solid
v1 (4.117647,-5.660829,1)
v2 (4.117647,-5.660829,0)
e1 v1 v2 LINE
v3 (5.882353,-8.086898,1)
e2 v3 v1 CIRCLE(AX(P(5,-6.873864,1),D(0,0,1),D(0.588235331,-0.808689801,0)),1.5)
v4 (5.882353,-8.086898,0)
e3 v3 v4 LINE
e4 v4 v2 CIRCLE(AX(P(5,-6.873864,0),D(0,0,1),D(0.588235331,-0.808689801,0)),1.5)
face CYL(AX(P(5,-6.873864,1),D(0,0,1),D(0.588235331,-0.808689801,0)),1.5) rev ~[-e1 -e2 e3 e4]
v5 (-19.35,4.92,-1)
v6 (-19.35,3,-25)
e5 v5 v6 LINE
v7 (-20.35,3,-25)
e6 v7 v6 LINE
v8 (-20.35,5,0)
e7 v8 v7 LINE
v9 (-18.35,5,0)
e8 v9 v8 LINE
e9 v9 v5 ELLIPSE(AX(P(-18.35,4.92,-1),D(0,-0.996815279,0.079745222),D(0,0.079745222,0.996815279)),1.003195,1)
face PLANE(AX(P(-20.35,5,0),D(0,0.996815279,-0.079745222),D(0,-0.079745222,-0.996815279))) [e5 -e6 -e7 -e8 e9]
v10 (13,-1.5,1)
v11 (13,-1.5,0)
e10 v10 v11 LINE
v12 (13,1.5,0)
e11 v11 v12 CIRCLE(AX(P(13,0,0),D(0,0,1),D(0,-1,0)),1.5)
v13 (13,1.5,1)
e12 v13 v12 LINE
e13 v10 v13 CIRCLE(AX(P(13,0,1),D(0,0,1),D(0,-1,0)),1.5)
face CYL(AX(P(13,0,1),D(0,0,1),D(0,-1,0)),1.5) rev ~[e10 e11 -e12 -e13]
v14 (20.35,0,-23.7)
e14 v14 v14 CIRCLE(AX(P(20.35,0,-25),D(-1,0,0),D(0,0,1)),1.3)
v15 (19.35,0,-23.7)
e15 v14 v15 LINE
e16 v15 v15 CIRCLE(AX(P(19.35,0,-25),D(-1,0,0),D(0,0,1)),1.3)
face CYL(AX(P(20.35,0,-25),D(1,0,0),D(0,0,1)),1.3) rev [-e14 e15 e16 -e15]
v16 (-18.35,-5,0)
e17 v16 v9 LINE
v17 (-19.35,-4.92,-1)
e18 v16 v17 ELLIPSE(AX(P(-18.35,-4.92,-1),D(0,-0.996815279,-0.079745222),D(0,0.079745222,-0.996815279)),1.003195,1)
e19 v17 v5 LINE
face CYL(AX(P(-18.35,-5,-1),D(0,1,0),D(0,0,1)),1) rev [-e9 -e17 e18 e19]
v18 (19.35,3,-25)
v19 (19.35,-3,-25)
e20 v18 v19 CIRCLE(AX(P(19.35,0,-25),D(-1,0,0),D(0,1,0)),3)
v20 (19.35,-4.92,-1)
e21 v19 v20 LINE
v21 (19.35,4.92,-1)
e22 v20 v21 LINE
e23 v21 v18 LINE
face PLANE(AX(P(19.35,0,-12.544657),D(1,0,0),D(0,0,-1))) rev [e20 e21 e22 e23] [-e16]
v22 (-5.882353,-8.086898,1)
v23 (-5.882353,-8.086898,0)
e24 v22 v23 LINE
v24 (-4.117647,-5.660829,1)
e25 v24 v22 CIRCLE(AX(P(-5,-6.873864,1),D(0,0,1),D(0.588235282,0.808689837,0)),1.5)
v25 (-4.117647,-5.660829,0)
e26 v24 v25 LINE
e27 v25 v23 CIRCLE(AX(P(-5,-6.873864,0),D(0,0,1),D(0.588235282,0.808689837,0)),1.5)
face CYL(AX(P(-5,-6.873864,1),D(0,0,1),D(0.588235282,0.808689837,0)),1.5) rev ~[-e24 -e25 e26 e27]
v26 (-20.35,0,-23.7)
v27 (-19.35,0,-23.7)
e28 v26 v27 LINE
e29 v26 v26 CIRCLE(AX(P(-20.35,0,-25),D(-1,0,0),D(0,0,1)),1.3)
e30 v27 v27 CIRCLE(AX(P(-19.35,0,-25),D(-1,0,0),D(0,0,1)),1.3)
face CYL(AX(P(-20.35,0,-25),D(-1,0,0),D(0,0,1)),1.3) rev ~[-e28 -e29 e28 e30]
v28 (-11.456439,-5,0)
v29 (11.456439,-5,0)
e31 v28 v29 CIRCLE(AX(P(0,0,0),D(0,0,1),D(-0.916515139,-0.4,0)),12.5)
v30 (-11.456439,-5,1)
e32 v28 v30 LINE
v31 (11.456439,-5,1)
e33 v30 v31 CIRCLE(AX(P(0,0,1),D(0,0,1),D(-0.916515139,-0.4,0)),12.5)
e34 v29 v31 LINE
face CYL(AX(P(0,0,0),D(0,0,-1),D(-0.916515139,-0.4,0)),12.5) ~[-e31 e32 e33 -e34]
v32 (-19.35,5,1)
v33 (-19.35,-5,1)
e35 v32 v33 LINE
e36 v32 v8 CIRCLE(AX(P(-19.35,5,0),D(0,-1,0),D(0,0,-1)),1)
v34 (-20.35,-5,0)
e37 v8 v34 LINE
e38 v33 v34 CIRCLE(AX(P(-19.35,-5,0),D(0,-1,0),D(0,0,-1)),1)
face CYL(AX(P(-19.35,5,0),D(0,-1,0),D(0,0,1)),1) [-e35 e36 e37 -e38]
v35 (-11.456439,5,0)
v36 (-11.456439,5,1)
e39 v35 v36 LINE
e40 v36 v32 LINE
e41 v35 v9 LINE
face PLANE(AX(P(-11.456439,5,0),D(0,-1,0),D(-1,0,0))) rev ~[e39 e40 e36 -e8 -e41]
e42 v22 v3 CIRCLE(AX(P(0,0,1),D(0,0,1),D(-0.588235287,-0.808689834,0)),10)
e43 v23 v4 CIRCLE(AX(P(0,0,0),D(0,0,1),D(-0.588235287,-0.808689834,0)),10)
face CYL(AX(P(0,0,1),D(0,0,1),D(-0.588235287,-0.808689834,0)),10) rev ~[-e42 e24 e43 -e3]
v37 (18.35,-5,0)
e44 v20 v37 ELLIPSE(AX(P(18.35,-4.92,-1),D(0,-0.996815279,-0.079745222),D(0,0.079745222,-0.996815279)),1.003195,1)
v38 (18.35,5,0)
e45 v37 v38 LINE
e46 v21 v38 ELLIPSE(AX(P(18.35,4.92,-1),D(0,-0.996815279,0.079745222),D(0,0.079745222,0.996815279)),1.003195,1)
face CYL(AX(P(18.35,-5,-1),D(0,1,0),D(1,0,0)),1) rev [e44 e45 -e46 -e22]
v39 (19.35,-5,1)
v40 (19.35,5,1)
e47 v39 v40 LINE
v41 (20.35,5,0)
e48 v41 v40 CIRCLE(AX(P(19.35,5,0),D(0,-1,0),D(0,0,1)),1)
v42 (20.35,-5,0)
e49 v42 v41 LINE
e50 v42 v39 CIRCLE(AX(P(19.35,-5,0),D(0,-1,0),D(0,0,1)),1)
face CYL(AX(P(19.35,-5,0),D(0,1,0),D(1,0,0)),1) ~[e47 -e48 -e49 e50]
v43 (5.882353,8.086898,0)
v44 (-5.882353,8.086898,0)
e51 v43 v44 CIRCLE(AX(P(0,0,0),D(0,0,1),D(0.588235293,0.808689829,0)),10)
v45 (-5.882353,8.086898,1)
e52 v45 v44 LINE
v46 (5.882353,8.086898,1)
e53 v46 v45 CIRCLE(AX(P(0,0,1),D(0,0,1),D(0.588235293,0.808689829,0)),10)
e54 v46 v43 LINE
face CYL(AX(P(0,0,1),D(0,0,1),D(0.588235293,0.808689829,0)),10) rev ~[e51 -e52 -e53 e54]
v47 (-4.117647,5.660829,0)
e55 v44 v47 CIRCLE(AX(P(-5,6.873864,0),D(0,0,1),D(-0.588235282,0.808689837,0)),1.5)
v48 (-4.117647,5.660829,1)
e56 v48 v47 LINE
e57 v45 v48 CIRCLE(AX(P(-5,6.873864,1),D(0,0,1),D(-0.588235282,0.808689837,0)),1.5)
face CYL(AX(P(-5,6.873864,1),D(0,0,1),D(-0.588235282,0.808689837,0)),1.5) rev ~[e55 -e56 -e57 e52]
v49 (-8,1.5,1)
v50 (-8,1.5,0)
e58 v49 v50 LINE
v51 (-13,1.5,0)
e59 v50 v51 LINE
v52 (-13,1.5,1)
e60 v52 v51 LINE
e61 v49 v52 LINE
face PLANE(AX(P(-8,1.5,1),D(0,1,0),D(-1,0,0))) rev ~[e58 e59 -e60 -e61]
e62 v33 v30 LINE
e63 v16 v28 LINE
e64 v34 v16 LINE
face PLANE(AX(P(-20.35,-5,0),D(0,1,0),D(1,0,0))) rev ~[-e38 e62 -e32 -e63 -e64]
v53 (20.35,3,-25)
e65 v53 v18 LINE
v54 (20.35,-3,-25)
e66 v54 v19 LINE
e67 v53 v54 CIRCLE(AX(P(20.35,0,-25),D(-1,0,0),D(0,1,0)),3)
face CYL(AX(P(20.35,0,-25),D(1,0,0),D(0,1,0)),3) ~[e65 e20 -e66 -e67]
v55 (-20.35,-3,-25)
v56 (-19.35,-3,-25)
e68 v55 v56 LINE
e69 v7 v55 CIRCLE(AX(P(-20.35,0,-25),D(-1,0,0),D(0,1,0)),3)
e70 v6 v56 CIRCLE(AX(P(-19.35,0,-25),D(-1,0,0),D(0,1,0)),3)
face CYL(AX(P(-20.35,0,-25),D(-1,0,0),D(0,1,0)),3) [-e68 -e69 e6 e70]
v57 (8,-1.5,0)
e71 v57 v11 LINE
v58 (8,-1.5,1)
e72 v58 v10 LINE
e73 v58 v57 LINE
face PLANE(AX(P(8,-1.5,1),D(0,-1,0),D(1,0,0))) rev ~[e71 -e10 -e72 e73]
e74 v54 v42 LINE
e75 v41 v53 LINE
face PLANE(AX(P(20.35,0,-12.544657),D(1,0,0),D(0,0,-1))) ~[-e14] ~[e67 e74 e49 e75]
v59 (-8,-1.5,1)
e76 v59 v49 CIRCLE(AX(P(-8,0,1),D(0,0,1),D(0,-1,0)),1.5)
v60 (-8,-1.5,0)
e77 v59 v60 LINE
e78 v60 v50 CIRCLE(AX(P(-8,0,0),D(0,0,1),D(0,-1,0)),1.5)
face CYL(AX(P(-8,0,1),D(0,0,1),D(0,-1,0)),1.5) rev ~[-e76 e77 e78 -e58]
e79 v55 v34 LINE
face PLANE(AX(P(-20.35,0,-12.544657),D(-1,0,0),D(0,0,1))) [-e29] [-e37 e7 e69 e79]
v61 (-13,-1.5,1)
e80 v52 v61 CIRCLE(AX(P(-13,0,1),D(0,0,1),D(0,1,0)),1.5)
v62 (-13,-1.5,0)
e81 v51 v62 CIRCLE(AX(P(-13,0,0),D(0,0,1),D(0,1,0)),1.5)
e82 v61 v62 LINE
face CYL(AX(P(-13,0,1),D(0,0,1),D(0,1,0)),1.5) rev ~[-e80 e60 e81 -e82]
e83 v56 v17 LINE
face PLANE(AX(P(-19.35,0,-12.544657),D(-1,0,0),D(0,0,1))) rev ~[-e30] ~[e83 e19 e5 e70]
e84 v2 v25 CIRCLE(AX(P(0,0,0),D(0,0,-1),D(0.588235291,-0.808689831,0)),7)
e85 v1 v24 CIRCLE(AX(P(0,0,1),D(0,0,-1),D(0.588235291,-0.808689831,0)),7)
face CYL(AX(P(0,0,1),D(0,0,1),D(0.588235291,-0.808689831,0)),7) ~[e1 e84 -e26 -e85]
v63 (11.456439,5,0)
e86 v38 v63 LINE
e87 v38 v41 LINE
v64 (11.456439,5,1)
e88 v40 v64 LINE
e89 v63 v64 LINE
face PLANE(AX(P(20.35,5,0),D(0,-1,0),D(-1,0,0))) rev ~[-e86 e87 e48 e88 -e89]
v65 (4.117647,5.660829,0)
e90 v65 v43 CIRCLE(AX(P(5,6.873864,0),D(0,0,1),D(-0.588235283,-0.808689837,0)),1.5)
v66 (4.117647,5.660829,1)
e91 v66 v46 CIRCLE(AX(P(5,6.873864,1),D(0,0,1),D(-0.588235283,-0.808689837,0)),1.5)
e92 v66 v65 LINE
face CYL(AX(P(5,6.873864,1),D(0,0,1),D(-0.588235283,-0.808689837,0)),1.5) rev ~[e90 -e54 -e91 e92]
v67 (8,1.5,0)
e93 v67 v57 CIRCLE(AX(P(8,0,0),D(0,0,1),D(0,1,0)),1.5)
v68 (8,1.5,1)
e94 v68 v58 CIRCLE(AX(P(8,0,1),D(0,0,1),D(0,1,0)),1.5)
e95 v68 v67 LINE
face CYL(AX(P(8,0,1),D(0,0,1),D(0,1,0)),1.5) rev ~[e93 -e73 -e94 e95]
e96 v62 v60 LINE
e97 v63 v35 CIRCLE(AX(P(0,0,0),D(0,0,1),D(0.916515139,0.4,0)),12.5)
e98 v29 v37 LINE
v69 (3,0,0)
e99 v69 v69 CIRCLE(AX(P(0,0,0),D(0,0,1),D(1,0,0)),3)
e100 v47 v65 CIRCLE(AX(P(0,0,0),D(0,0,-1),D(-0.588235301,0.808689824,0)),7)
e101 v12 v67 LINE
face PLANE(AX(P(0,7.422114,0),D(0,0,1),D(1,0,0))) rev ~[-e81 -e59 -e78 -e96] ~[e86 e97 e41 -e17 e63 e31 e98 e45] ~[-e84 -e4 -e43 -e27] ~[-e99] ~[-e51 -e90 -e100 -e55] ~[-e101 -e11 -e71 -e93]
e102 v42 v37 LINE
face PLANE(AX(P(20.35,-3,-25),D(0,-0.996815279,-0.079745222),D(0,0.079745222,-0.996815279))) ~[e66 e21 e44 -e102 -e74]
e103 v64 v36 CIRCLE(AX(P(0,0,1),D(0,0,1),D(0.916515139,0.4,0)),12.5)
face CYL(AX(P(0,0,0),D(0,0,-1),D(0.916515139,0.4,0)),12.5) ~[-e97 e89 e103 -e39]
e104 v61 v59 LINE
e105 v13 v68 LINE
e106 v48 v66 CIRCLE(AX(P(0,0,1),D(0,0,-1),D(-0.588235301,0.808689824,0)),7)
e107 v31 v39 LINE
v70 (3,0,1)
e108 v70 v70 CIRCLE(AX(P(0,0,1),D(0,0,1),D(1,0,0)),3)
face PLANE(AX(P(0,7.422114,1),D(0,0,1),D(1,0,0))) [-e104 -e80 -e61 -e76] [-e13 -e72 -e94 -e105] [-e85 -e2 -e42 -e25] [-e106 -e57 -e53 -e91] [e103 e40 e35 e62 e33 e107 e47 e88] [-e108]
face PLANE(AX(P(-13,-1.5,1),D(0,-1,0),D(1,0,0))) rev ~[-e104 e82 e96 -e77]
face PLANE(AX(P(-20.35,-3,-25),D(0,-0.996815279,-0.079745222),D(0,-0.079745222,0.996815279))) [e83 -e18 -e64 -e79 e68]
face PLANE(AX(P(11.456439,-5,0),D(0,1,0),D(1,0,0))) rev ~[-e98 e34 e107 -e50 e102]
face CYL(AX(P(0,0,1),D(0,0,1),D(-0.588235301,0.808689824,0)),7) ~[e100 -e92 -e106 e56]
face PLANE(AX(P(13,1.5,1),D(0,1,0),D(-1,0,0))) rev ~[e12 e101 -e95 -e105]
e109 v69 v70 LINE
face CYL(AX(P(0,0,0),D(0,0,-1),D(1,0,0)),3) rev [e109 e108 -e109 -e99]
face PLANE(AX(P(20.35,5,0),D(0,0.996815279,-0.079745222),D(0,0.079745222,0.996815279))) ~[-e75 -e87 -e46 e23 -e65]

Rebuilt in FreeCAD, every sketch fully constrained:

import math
import FreeCAD as App
import Part
import Sketcher
from FreeCAD import Vector
Q = App.Units.Quantity


def edges_at(feature, points):
    """Names of the edges that pass closest to the given points."""
    edges = feature.Shape.Edges
    near = lambda p: min(range(len(edges)), key=lambda i: edges[i].distToShape(Part.Vertex(*p))[0])
    return sorted({f"Edge{near(p) + 1}" for p in points})

doc = App.newDocument("Part")
body = doc.addObject("PartDesign::Body", "Body")

# Sketch on XY plane
sketch1 = body.newObject("Sketcher::SketchObject", "Sketch")
sketch1.AttachmentSupport = (doc.getObject("XY_Plane"), [""])
sketch1.MapMode = "FlatFace"
sketch1.addGeometry(Part.ArcOfCircle(Part.Circle(Vector(0, 0, 0), Vector(0, 0, 1), 12.5), math.radians(24), math.radians(156)), False)
sketch1.addGeometry(Part.LineSegment(Vector(-11.5, 5, 0), Vector(-20.4, 5, 0)), False)
sketch1.addGeometry(Part.LineSegment(Vector(-20.4, 5, 0), Vector(-20.4, -5, 0)), False)
sketch1.addGeometry(Part.LineSegment(Vector(-20.4, -5, 0), Vector(-11.5, -5, 0)), False)
sketch1.addGeometry(Part.ArcOfCircle(Part.Circle(Vector(0, 0, 0), Vector(0, 0, 1), 12.5), math.radians(-156), math.radians(-24)), False)
sketch1.addGeometry(Part.LineSegment(Vector(11.5, -5, 0), Vector(20.4, -5, 0)), False)
sketch1.addGeometry(Part.LineSegment(Vector(20.4, -5, 0), Vector(20.4, 5, 0)), False)
sketch1.addGeometry(Part.LineSegment(Vector(20.4, 5, 0), Vector(11.5, 5, 0)), False)
sketch1.addGeometry(Part.Circle(Vector(0, 0, 0), Vector(0, 0, 1), 3), False)
sketch1.addConstraint(Sketcher.Constraint("Coincident", 0, 2, 1, 1))
sketch1.addConstraint(Sketcher.Constraint("Coincident", 1, 2, 2, 1))
sketch1.addConstraint(Sketcher.Constraint("Coincident", 2, 2, 3, 1))
sketch1.addConstraint(Sketcher.Constraint("Coincident", 3, 2, 4, 1))
sketch1.addConstraint(Sketcher.Constraint("Coincident", 4, 2, 5, 1))
sketch1.addConstraint(Sketcher.Constraint("Coincident", 5, 2, 6, 1))
sketch1.addConstraint(Sketcher.Constraint("Coincident", 6, 2, 7, 1))
sketch1.addConstraint(Sketcher.Constraint("Coincident", 7, 2, 0, 1))
sketch1.addConstraint(Sketcher.Constraint("Horizontal", 1))
sketch1.addConstraint(Sketcher.Constraint("Vertical", 2))
sketch1.addConstraint(Sketcher.Constraint("Horizontal", 3))
sketch1.addConstraint(Sketcher.Constraint("Horizontal", 5))
sketch1.addConstraint(Sketcher.Constraint("Vertical", 6))
sketch1.addConstraint(Sketcher.Constraint("Horizontal", 7))
sketch1.addConstraint(Sketcher.Constraint("Coincident", 0, 3, -1, 1))
sketch1.addConstraint(Sketcher.Constraint("Coincident", 4, 3, -1, 1))
sketch1.addConstraint(Sketcher.Constraint("Coincident", 8, 3, -1, 1))
sketch1.addConstraint(Sketcher.Constraint("Equal", 0, 4))
sketch1.addConstraint(Sketcher.Constraint("Symmetric", 1, 2, 5, 2, -1, 1))
sketch1.addConstraint(Sketcher.Constraint("Horizontal", 3, 2, 4, 2))
sketch1.addConstraint(Sketcher.Constraint("Horizontal", 1, 2, 6, 2))
sketch1.addConstraint(Sketcher.Constraint("Diameter", 8, Q("6 mm")))
sketch1.addConstraint(Sketcher.Constraint("Radius", 0, Q("12.5 mm")))
sketch1.addConstraint(Sketcher.Constraint("DistanceY", 2, 2, 2, 1, Q("10 mm")))
sketch1.addConstraint(Sketcher.Constraint("DistanceX", 1, 2, -1, 1, Q("20.35 mm")))
pad1 = body.newObject("PartDesign::Pad", "Pad")
pad1.Profile = sketch1
pad1.Length = 1

# Sketch on YZ plane
sketch2 = body.newObject("Sketcher::SketchObject", "Sketch001")
sketch2.AttachmentSupport = (doc.getObject("YZ_Plane"), [""])
sketch2.MapMode = "FlatFace"
sketch2.AttachmentOffset = App.Placement(Vector(0, 0, -20.35), App.Rotation())
sketch2.addGeometry(Part.LineSegment(Vector(-3, -25, 0), Vector(-5, 0, 0)), False)
sketch2.addGeometry(Part.LineSegment(Vector(-5, 0, 0), Vector(5, 0, 0)), False)
sketch2.addGeometry(Part.LineSegment(Vector(5, 0, 0), Vector(3, -25, 0)), False)
sketch2.addGeometry(Part.ArcOfCircle(Part.Circle(Vector(0, -25, 0), Vector(0, 0, 1), 3), math.radians(180), math.radians(360)), False)
sketch2.addGeometry(Part.Circle(Vector(0, -25, 0), Vector(0, 0, 1), 1.3), False)
sketch2.addConstraint(Sketcher.Constraint("Coincident", 0, 2, 1, 1))
sketch2.addConstraint(Sketcher.Constraint("Coincident", 1, 2, 2, 1))
sketch2.addConstraint(Sketcher.Constraint("Coincident", 2, 2, 3, 2))
sketch2.addConstraint(Sketcher.Constraint("Coincident", 3, 1, 0, 1))
sketch2.addConstraint(Sketcher.Constraint("Horizontal", 1))
sketch2.addConstraint(Sketcher.Constraint("Coincident", 4, 3, 3, 3))
sketch2.addConstraint(Sketcher.Constraint("Symmetric", 0, 2, 1, 2, -1, 1))
sketch2.addConstraint(Sketcher.Constraint("Symmetric", 2, 2, 3, 1, -2))
sketch2.addConstraint(Sketcher.Constraint("Horizontal", 4, 3, 2, 2))
sketch2.addConstraint(Sketcher.Constraint("Radius", 3, Q("3 mm")))
sketch2.addConstraint(Sketcher.Constraint("Diameter", 4, Q("2.6 mm")))
sketch2.addConstraint(Sketcher.Constraint("DistanceX", 1, 1, 1, 2, Q("10 mm")))
sketch2.addConstraint(Sketcher.Constraint("DistanceY", 3, 3, -1, 1, Q("25 mm")))
pad2 = body.newObject("PartDesign::Pad", "Pad001")
pad2.Profile = sketch2
pad2.Length = 1
doc.recompute()

mirrored = body.newObject("PartDesign::Mirrored", "Mirrored")
mirrored.Originals = [pad2]
mirrored.MirrorPlane = (doc.getObject("YZ_Plane"), [""])
body.Tip = mirrored
doc.recompute()

fillet = body.newObject("PartDesign::Fillet", "Fillet")
fillet.Base = (mirrored, edges_at(mirrored, [
    (20.35, 0, 1),
    (-20.35, 0, 1),
    (19.35, 0, 0),
    (-19.35, 0, 0),
]))
fillet.Radius = 1

# Sketch on XY plane
sketch3 = body.newObject("Sketcher::SketchObject", "Sketch002")
sketch3.AttachmentSupport = (doc.getObject("XY_Plane"), [""])
sketch3.MapMode = "FlatFace"
sketch3.AttachmentOffset = App.Placement(Vector(0, 0, 1), App.Rotation())
sketch3.addGeometry(Part.ArcOfCircle(Part.Circle(Vector(8, 0, 0), Vector(0, 0, 1), 1.5), math.radians(90), math.radians(270)), False)
sketch3.addGeometry(Part.LineSegment(Vector(8, -1.5, 0), Vector(13, -1.5, 0)), False)
sketch3.addGeometry(Part.ArcOfCircle(Part.Circle(Vector(13, 0, 0), Vector(0, 0, 1), 1.5), math.radians(-90), math.radians(90)), False)
sketch3.addGeometry(Part.LineSegment(Vector(13, 1.5, 0), Vector(8, 1.5, 0)), False)
sketch3.addGeometry(Part.ArcOfCircle(Part.Circle(Vector(0, 0, 0), Vector(0, 0, 1), 7), math.radians(54), math.radians(126)), False)
sketch3.addGeometry(Part.ArcOfCircle(Part.Circle(Vector(5, 6.9, 0), Vector(0, 0, 1), 1.5), math.radians(-126), math.radians(54)), False)
sketch3.addGeometry(Part.ArcOfCircle(Part.Circle(Vector(0, 0, 0), Vector(0, 0, 1), 10), math.radians(54), math.radians(126)), False)
sketch3.addGeometry(Part.ArcOfCircle(Part.Circle(Vector(-5, 6.9, 0), Vector(0, 0, 1), 1.5), math.radians(126), math.radians(306)), False)
sketch3.addGeometry(Part.ArcOfCircle(Part.Circle(Vector(0, 0, 0), Vector(0, 0, 1), 7), math.radians(-126), math.radians(-54)), False)
sketch3.addGeometry(Part.ArcOfCircle(Part.Circle(Vector(-5, -6.9, 0), Vector(0, 0, 1), 1.5), math.radians(54), math.radians(234)), False)
sketch3.addGeometry(Part.ArcOfCircle(Part.Circle(Vector(0, 0, 0), Vector(0, 0, 1), 10), math.radians(-126), math.radians(-54)), False)
sketch3.addGeometry(Part.ArcOfCircle(Part.Circle(Vector(5, -6.9, 0), Vector(0, 0, 1), 1.5), math.radians(-54), math.radians(126)), False)
sketch3.addGeometry(Part.ArcOfCircle(Part.Circle(Vector(-8, 0, 0), Vector(0, 0, 1), 1.5), math.radians(-90), math.radians(90)), False)
sketch3.addGeometry(Part.LineSegment(Vector(-8, 1.5, 0), Vector(-13, 1.5, 0)), False)
sketch3.addGeometry(Part.ArcOfCircle(Part.Circle(Vector(-13, 0, 0), Vector(0, 0, 1), 1.5), math.radians(90), math.radians(270)), False)
sketch3.addGeometry(Part.LineSegment(Vector(-13, -1.5, 0), Vector(-8, -1.5, 0)), False)
sketch3.addConstraint(Sketcher.Constraint("Tangent", 0, 2, 1, 1))
sketch3.addConstraint(Sketcher.Constraint("Tangent", 1, 2, 2, 1))
sketch3.addConstraint(Sketcher.Constraint("Tangent", 2, 2, 3, 1))
sketch3.addConstraint(Sketcher.Constraint("Tangent", 3, 2, 0, 1))
sketch3.addConstraint(Sketcher.Constraint("Tangent", 4, 1, 5, 1))
sketch3.addConstraint(Sketcher.Constraint("Tangent", 5, 2, 6, 1))
sketch3.addConstraint(Sketcher.Constraint("Tangent", 6, 2, 7, 1))
sketch3.addConstraint(Sketcher.Constraint("Tangent", 7, 2, 4, 2))
sketch3.addConstraint(Sketcher.Constraint("Tangent", 8, 1, 9, 1))
sketch3.addConstraint(Sketcher.Constraint("Tangent", 9, 2, 10, 1))
sketch3.addConstraint(Sketcher.Constraint("Tangent", 10, 2, 11, 1))
sketch3.addConstraint(Sketcher.Constraint("Tangent", 11, 2, 8, 2))
sketch3.addConstraint(Sketcher.Constraint("Tangent", 12, 2, 13, 1))
sketch3.addConstraint(Sketcher.Constraint("Tangent", 13, 2, 14, 1))
sketch3.addConstraint(Sketcher.Constraint("Tangent", 14, 2, 15, 1))
sketch3.addConstraint(Sketcher.Constraint("Tangent", 15, 2, 12, 1))
sketch3.addConstraint(Sketcher.Constraint("Horizontal", 1))
sketch3.addConstraint(Sketcher.Constraint("Horizontal", 3))
sketch3.addConstraint(Sketcher.Constraint("Horizontal", 13))
sketch3.addConstraint(Sketcher.Constraint("Horizontal", 15))
sketch3.addConstraint(Sketcher.Constraint("Coincident", 4, 3, -1, 1))
sketch3.addConstraint(Sketcher.Constraint("Coincident", 6, 3, -1, 1))
sketch3.addConstraint(Sketcher.Constraint("Coincident", 8, 3, -1, 1))
sketch3.addConstraint(Sketcher.Constraint("Coincident", 10, 3, -1, 1))
sketch3.addConstraint(Sketcher.Constraint("Equal", 2, 5))
sketch3.addConstraint(Sketcher.Constraint("Equal", 4, 8))
sketch3.addConstraint(Sketcher.Constraint("Equal", 7, 9))
sketch3.addConstraint(Sketcher.Constraint("Equal", 11, 12))
sketch3.addConstraint(Sketcher.Constraint("Symmetric", 0, 3, 12, 3, -1, 1))
sketch3.addConstraint(Sketcher.Constraint("Symmetric", 2, 3, 14, 3, -2))
sketch3.addConstraint(Sketcher.Constraint("Horizontal", 5, 3, 7, 3))
sketch3.addConstraint(Sketcher.Constraint("Horizontal", 9, 3, 11, 3))
sketch3.addConstraint(Sketcher.Constraint("Vertical", 7, 3, 9, 3))
sketch3.addConstraint(Sketcher.Constraint("Radius", 4, Q("7 mm")))
sketch3.addConstraint(Sketcher.Constraint("Radius", 6, Q("10 mm")))
sketch3.addConstraint(Sketcher.Constraint("DistanceX", 1, 1, 1, 2, Q("5 mm")))
sketch3.addConstraint(Sketcher.Constraint("DistanceX", -1, 1, 0, 3, Q("8 mm")))
sketch3.addConstraint(Sketcher.Constraint("DistanceX", -1, 1, 5, 3, Q("5 mm")))
pocket1 = body.newObject("PartDesign::Pocket", "Pocket")
pocket1.Profile = sketch3
pocket1.Length = 1

doc.recompute()
